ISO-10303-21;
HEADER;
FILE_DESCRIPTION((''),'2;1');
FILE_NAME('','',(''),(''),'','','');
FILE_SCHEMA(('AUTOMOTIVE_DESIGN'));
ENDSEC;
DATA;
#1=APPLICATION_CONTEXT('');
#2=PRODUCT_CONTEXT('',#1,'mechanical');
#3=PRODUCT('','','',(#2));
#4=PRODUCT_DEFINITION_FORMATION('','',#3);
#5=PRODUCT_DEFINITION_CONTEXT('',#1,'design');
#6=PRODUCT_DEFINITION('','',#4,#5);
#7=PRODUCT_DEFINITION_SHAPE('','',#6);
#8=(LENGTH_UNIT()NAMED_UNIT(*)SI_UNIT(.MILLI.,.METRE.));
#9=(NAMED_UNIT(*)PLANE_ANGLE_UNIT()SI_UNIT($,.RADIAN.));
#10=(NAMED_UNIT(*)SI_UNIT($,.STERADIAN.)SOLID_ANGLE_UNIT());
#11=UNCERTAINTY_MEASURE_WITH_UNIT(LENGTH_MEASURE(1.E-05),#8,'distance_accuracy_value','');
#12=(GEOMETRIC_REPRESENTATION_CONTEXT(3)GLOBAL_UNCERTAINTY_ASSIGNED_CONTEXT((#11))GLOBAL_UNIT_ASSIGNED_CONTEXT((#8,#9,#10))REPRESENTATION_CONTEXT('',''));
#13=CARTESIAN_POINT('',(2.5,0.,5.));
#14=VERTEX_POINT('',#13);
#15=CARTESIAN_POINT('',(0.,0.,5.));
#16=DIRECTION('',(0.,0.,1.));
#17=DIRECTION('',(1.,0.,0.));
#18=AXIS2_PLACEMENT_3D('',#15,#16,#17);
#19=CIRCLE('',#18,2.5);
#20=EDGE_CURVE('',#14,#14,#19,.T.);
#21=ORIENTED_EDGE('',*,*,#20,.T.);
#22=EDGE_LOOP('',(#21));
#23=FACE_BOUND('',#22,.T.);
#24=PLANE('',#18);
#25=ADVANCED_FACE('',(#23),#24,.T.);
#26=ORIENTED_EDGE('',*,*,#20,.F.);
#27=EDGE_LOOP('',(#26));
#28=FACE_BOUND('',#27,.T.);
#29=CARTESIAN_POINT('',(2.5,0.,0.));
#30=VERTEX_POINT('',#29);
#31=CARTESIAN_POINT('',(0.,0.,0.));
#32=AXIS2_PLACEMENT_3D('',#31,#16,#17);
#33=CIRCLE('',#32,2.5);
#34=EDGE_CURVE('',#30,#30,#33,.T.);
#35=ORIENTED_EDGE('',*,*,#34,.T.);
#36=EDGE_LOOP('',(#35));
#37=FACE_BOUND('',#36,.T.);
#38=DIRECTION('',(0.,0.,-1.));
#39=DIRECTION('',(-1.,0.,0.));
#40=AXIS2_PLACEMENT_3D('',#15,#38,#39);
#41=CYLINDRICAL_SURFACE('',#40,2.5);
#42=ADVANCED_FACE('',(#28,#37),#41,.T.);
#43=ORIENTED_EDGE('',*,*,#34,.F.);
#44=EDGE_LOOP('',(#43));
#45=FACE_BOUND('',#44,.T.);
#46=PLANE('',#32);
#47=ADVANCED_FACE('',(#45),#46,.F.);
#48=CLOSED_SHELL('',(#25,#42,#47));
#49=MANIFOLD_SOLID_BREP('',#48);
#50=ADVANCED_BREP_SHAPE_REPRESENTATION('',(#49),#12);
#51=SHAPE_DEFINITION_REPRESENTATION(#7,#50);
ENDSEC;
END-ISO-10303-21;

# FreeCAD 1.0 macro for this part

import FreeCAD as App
import Part
import Sketcher

V = App.Vector

doc = App.newDocument("Part")
params = doc.addObject("Spreadsheet::Sheet", "Params")
for row, (alias, value) in enumerate([
    ("sketch1_diameter", "5 mm"),
    ("pad1_length", "5 mm"),
], start=1):
    params.set(f"A{row}", alias)
    params.set(f"B{row}", "=" + value)
    params.setAlias(f"B{row}", alias)

body = doc.addObject("PartDesign::Body", "Body")

# Sketch on XY plane
sketch1 = body.newObject("Sketcher::SketchObject", "Sketch")
sketch1.AttachmentSupport = (doc.getObject("XY_Plane"), [""])
sketch1.MapMode = "FlatFace"
sketch1.addGeometry(Part.Circle(V(0, 0, 0), V(0, 0, 1), 2.5), False)
sketch1.addConstraint([
    Sketcher.Constraint("Coincident", 0, 3, -1, 1),
    Sketcher.Constraint("Diameter", 0, 5.0),
])
sketch1.setExpression("Constraints[1]", "Params.sketch1_diameter")
pad1 = body.newObject("PartDesign::Pad", "Pad")
pad1.Profile = sketch1
pad1.setExpression("Length", "Params.pad1_length")

doc.recompute()
